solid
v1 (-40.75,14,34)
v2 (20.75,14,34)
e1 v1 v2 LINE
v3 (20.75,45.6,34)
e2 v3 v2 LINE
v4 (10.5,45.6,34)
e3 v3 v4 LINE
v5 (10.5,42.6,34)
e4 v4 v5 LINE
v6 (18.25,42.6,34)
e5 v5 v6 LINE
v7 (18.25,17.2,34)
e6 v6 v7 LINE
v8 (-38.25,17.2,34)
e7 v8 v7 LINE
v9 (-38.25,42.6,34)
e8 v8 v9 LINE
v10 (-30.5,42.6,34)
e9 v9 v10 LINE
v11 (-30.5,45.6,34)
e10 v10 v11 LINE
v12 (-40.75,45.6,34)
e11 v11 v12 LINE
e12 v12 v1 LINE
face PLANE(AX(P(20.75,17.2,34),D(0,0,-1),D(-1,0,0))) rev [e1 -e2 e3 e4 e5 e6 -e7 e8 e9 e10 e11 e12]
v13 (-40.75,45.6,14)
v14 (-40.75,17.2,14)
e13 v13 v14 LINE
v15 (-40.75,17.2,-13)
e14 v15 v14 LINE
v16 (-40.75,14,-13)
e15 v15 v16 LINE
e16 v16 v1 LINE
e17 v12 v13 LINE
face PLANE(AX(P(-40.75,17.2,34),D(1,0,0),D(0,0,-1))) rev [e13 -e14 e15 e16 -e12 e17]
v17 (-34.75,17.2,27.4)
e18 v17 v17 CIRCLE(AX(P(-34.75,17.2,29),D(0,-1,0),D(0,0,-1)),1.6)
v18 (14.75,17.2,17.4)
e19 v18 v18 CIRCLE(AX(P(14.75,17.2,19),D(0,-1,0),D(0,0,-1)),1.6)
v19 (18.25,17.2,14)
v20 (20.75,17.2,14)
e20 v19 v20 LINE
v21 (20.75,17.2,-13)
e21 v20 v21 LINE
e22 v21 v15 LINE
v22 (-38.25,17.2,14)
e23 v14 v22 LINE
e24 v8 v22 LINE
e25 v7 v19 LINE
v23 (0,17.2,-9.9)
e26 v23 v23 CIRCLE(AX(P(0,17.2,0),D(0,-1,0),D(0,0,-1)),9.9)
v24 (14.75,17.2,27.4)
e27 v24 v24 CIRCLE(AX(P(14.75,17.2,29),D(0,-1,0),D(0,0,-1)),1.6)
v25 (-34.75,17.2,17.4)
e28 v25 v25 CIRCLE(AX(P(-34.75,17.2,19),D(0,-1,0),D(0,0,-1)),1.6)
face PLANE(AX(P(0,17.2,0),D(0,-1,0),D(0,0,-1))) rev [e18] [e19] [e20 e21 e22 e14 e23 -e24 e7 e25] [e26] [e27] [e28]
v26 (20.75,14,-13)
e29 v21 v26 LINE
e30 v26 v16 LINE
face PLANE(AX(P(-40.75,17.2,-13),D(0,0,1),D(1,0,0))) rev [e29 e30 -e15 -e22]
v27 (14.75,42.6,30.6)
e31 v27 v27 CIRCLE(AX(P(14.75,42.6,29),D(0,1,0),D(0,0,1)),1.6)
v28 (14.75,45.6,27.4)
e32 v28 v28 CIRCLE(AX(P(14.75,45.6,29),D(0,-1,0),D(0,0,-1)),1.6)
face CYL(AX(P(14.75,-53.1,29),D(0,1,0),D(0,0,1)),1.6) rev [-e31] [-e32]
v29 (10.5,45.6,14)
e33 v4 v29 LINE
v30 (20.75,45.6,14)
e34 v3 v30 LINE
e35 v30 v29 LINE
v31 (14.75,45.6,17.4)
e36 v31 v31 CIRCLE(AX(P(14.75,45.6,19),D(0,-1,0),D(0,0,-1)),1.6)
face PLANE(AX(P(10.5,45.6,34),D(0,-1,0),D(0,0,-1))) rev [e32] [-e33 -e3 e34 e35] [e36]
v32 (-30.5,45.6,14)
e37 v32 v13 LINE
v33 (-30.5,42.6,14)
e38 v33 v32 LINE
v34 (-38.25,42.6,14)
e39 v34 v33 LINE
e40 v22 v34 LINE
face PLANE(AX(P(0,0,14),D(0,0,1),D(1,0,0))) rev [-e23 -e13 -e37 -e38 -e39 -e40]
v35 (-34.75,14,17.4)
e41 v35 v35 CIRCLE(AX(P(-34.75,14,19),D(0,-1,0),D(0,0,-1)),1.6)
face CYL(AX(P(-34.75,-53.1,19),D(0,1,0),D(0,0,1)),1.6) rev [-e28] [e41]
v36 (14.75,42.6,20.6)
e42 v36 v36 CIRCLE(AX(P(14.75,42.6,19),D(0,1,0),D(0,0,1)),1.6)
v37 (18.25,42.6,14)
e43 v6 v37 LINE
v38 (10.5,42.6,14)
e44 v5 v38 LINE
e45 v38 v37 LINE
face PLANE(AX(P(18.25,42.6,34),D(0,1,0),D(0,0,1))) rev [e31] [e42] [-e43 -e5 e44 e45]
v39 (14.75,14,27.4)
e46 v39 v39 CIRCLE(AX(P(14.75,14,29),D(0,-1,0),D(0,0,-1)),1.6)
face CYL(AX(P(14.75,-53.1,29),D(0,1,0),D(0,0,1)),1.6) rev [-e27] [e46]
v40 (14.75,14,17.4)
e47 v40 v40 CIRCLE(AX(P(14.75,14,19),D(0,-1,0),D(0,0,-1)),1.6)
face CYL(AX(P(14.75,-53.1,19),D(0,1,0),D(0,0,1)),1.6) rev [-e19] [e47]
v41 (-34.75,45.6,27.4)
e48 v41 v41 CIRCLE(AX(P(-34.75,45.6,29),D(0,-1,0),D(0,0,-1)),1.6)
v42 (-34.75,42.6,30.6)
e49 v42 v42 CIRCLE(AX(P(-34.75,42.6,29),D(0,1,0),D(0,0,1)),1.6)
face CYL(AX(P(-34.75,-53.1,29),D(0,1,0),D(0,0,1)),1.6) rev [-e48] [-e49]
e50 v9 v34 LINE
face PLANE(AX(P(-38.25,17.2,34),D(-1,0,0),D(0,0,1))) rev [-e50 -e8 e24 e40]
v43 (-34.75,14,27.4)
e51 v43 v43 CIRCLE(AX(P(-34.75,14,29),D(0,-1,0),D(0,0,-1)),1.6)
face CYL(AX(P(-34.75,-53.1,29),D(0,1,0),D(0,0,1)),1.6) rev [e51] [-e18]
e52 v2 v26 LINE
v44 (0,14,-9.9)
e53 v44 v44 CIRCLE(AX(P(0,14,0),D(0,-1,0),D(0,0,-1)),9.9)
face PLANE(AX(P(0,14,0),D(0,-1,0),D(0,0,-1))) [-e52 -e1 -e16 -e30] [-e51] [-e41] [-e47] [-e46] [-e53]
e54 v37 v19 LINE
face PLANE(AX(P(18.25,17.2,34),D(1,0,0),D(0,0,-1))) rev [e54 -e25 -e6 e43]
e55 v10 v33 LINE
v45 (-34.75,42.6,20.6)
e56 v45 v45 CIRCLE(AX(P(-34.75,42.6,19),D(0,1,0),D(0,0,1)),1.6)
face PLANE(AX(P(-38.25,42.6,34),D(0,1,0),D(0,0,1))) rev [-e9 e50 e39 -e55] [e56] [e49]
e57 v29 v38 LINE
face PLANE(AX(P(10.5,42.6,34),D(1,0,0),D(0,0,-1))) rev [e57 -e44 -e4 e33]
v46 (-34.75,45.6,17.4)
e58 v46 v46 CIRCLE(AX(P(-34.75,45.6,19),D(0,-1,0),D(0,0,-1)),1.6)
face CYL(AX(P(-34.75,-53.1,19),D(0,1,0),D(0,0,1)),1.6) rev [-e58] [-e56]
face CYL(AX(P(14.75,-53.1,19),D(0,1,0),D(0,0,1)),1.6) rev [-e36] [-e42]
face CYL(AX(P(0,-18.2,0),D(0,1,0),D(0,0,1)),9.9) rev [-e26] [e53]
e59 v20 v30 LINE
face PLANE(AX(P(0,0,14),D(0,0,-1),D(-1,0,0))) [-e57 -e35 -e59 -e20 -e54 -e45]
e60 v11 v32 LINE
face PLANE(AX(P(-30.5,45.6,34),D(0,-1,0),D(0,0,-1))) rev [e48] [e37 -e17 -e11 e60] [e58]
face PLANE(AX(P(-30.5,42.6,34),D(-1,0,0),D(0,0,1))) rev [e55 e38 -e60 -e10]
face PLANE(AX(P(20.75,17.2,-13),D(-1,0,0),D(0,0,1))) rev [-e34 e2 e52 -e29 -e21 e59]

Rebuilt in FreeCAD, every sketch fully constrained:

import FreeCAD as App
import Part
import Sketcher
from FreeCAD import Vector

doc = App.newDocument("Part")
body = doc.addObject("PartDesign::Body", "Body")

sketch1 = body.newObject("Sketcher::SketchObject", "Sketch")
sketch1.AttachmentSupport = (doc.getObject("XZ_Plane"), [""])
sketch1.MapMode = "FlatFace"
sketch1.AttachmentOffset = App.Placement(Vector(0, 0, -14), App.Rotation())
sketch1.addGeometry(Part.LineSegment(Vector(-40.75, -13, 0), Vector(-40.75, 34, 0)), False)
sketch1.addGeometry(Part.LineSegment(Vector(-40.75, 34, 0), Vector(20.75, 34, 0)), False)
sketch1.addGeometry(Part.LineSegment(Vector(20.75, 34, 0), Vector(20.75, -13, 0)), False)
sketch1.addGeometry(Part.LineSegment(Vector(20.75, -13, 0), Vector(-40.75, -13, 0)), False)
sketch1.addConstraint(Sketcher.Constraint("Coincident", 0, 2, 1, 1))
sketch1.addConstraint(Sketcher.Constraint("Coincident", 1, 2, 2, 1))
sketch1.addConstraint(Sketcher.Constraint("Coincident", 2, 2, 3, 1))
sketch1.addConstraint(Sketcher.Constraint("Coincident", 3, 2, 0, 1))
sketch1.addConstraint(Sketcher.Constraint("Vertical", 0))
sketch1.addConstraint(Sketcher.Constraint("Horizontal", 1))
sketch1.addConstraint(Sketcher.Constraint("Vertical", 2))
sketch1.addConstraint(Sketcher.Constraint("Horizontal", 3))
sketch1.addConstraint(Sketcher.Constraint("DistanceY", 0, 1, 0, 2, 47.0))
sketch1.addConstraint(Sketcher.Constraint("DistanceX", 1, 1, 1, 2, 61.5))
sketch1.addConstraint(Sketcher.Constraint("DistanceY", -1, 1, 0, 2, 34.0))
sketch1.addConstraint(Sketcher.Constraint("DistanceX", 0, 2, -1, 1, 40.75))
pad1 = body.newObject("PartDesign::Pad", "Pad")
pad1.Profile = sketch1
pad1.Length = 3.2
pad1.Reversed = True

sketch2 = body.newObject("Sketcher::SketchObject", "Sketch001")
sketch2.AttachmentSupport = (doc.getObject("XY_Plane"), [""])
sketch2.MapMode = "FlatFace"
sketch2.AttachmentOffset = App.Placement(Vector(0, 0, 14), App.Rotation())
sketch2.addGeometry(Part.LineSegment(Vector(-40.75, 17.2, 0), Vector(-38.25, 17.2, 0)), False)
sketch2.addGeometry(Part.LineSegment(Vector(-38.25, 17.2, 0), Vector(-38.25, 42.6, 0)), False)
sketch2.addGeometry(Part.LineSegment(Vector(-38.25, 42.6, 0), Vector(-30.5, 42.6, 0)), False)
sketch2.addGeometry(Part.LineSegment(Vector(-30.5, 42.6, 0), Vector(-30.5, 45.6, 0)), False)
sketch2.addGeometry(Part.LineSegment(Vector(-30.5, 45.6, 0), Vector(-40.75, 45.6, 0)), False)
sketch2.addGeometry(Part.LineSegment(Vector(-40.75, 45.6, 0), Vector(-40.75, 17.2, 0)), False)
sketch2.addGeometry(Part.LineSegment(Vector(18.25, 17.2, 0), Vector(20.75, 17.2, 0)), False)
sketch2.addGeometry(Part.LineSegment(Vector(20.75, 17.2, 0), Vector(20.75, 45.6, 0)), False)
sketch2.addGeometry(Part.LineSegment(Vector(20.75, 45.6, 0), Vector(10.5, 45.6, 0)), False)
sketch2.addGeometry(Part.LineSegment(Vector(10.5, 45.6, 0), Vector(10.5, 42.6, 0)), False)
sketch2.addGeometry(Part.LineSegment(Vector(10.5, 42.6, 0), Vector(18.25, 42.6, 0)), False)
sketch2.addGeometry(Part.LineSegment(Vector(18.25, 42.6, 0), Vector(18.25, 17.2, 0)), False)
sketch2.addConstraint(Sketcher.Constraint("Coincident", 0, 2, 1, 1))
sketch2.addConstraint(Sketcher.Constraint("Coincident", 1, 2, 2, 1))
sketch2.addConstraint(Sketcher.Constraint("Coincident", 2, 2, 3, 1))
sketch2.addConstraint(Sketcher.Constraint("Coincident", 3, 2, 4, 1))
sketch2.addConstraint(Sketcher.Constraint("Coincident", 4, 2, 5, 1))
sketch2.addConstraint(Sketcher.Constraint("Coincident", 5, 2, 0, 1))
sketch2.addConstraint(Sketcher.Constraint("Coincident", 6, 2, 7, 1))
sketch2.addConstraint(Sketcher.Constraint("Coincident", 7, 2, 8, 1))
sketch2.addConstraint(Sketcher.Constraint("Coincident", 8, 2, 9, 1))
sketch2.addConstraint(Sketcher.Constraint("Coincident", 9, 2, 10, 1))
sketch2.addConstraint(Sketcher.Constraint("Coincident", 10, 2, 11, 1))
sketch2.addConstraint(Sketcher.Constraint("Coincident", 11, 2, 6, 1))
sketch2.addConstraint(Sketcher.Constraint("Horizontal", 0))
sketch2.addConstraint(Sketcher.Constraint("Vertical", 1))
sketch2.addConstraint(Sketcher.Constraint("Horizontal", 2))
sketch2.addConstraint(Sketcher.Constraint("Vertical", 3))
sketch2.addConstraint(Sketcher.Constraint("Horizontal", 4))
sketch2.addConstraint(Sketcher.Constraint("Vertical", 5))
sketch2.addConstraint(Sketcher.Constraint("Horizontal", 6))
sketch2.addConstraint(Sketcher.Constraint("Vertical", 7))
sketch2.addConstraint(Sketcher.Constraint("Horizontal", 8))
sketch2.addConstraint(Sketcher.Constraint("Vertical", 9))
sketch2.addConstraint(Sketcher.Constraint("Horizontal", 10))
sketch2.addConstraint(Sketcher.Constraint("Vertical", 11))
sketch2.addConstraint(Sketcher.Constraint("Horizontal", 5, 2, 6, 2))
sketch2.addConstraint(Sketcher.Constraint("Horizontal", 4, 2, 7, 2))
sketch2.addConstraint(Sketcher.Constraint("Horizontal", 2, 2, 9, 2))
sketch2.addConstraint(Sketcher.Constraint("Equal", 0, 6))
sketch2.addConstraint(Sketcher.Constraint("Equal", 4, 8))
sketch2.addConstraint(Sketcher.Constraint("DistanceY", 3, 1, 3, 2, 3.0))
sketch2.addConstraint(Sketcher.Constraint("DistanceX", 0, 1, 0, 2, 2.5))
sketch2.addConstraint(Sketcher.Constraint("DistanceY", 1, 1, 1, 2, 25.4))
sketch2.addConstraint(Sketcher.Constraint("DistanceX", 0, 2, 6, 2, 59.0))
sketch2.addConstraint(Sketcher.Constraint("DistanceX", 3, 2, 8, 2, 41.0))
sketch2.addConstraint(Sketcher.Constraint("DistanceY", -1, 1, 0, 2, 17.2))
sketch2.addConstraint(Sketcher.Constraint("DistanceX", 2, 2, -1, 1, 30.5))
pad2 = body.newObject("PartDesign::Pad", "Pad001")
pad2.Profile = sketch2
pad2.Length = 20

sketch3 = body.newObject("Sketcher::SketchObject", "Sketch002")
sketch3.AttachmentSupport = (doc.getObject("XZ_Plane"), [""])
sketch3.MapMode = "FlatFace"
sketch3.addGeometry(Part.Circle(Vector(-34.75, 19, 0), Vector(0, 0, 1), 1.6), False)
sketch3.addGeometry(Part.Circle(Vector(-34.75, 29, 0), Vector(0, 0, 1), 1.6), False)
sketch3.addGeometry(Part.Circle(Vector(14.75, 19, 0), Vector(0, 0, 1), 1.6), False)
sketch3.addGeometry(Part.Circle(Vector(14.75, 29, 0), Vector(0, 0, 1), 1.6), False)
sketch3.addConstraint(Sketcher.Constraint("Equal", 0, 1))
sketch3.addConstraint(Sketcher.Constraint("Equal", 1, 2))
sketch3.addConstraint(Sketcher.Constraint("Equal", 2, 3))
sketch3.addConstraint(Sketcher.Constraint("Horizontal", 0, 3, 2, 3))
sketch3.addConstraint(Sketcher.Constraint("Horizontal", 1, 3, 3, 3))
sketch3.addConstraint(Sketcher.Constraint("Vertical", 0, 3, 1, 3))
sketch3.addConstraint(Sketcher.Constraint("Vertical", 2, 3, 3, 3))
sketch3.addConstraint(Sketcher.Constraint("Diameter", 0, 3.2))
sketch3.addConstraint(Sketcher.Constraint("DistanceY", -1, 1, 0, 3, 19.0))
sketch3.addConstraint(Sketcher.Constraint("DistanceY", -1, 1, 1, 3, 29.0))
sketch3.addConstraint(Sketcher.Constraint("DistanceX", 0, 3, 2, 3, 49.5))
sketch3.addConstraint(Sketcher.Constraint("DistanceX", 0, 3, -1, 1, 34.75))
pocket1 = body.newObject("PartDesign::Pocket", "Pocket")
pocket1.Profile = sketch3
pocket1.Length = 106.2
pocket1.Midplane = True

sketch4 = body.newObject("Sketcher::SketchObject", "Sketch003")
sketch4.AttachmentSupport = (doc.getObject("XZ_Plane"), [""])
sketch4.MapMode = "FlatFace"
sketch4.addGeometry(Part.Circle(Vector(0, 0, 0), Vector(0, 0, 1), 9.9), False)
sketch4.addConstraint(Sketcher.Constraint("Coincident", 0, 3, -1, 1))
sketch4.addConstraint(Sketcher.Constraint("Diameter", 0, 19.8))
pocket2 = body.newObject("PartDesign::Pocket", "Pocket001")
pocket2.Profile = sketch4
pocket2.Length = 36.4
pocket2.Midplane = True

doc.recompute()
